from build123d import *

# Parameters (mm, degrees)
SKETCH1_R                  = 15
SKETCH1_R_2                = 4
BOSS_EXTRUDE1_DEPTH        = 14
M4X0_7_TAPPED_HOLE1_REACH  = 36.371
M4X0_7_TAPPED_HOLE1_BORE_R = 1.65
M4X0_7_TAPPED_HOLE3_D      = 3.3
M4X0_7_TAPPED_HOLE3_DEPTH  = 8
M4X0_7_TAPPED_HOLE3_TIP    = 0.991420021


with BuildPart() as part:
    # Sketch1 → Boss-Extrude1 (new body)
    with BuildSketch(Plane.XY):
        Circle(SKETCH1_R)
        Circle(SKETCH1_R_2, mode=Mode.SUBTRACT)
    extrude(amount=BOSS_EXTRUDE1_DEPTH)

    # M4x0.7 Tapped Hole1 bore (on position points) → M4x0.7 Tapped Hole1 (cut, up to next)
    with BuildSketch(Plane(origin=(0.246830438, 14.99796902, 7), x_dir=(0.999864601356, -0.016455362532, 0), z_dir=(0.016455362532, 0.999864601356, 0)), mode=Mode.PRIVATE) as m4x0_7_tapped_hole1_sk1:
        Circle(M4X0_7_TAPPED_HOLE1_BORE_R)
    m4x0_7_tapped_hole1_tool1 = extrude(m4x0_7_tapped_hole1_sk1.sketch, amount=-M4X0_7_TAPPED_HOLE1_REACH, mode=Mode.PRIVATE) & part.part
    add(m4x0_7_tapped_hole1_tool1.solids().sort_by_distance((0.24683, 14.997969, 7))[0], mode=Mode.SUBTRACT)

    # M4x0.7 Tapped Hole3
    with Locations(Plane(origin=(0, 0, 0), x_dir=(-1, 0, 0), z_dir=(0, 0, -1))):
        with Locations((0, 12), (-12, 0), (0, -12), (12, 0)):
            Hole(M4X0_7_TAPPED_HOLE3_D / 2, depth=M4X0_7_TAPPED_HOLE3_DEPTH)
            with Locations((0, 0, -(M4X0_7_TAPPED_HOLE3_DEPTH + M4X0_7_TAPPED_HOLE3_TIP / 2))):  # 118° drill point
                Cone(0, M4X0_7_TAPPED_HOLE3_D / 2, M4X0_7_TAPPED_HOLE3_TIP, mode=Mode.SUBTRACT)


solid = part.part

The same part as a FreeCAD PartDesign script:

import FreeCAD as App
import Part
import Sketcher
from FreeCAD import Vector
Q = App.Units.Quantity

doc = App.newDocument("Part")
body = doc.addObject("PartDesign::Body", "Body")

sketch1 = body.newObject("Sketcher::SketchObject", "Sketch")
sketch1.AttachmentSupport = (doc.getObject("XY_Plane"), [""])
sketch1.MapMode = "FlatFace"
sketch1.addGeometry(Part.Circle(Vector(0, 0, 0), Vector(0, 0, 1), 15), False)
sketch1.addGeometry(Part.Circle(Vector(0, 0, 0), Vector(0, 0, 1), 4), False)
sketch1.addConstraint(Sketcher.Constraint("Coincident", 0, 3, -1, 1))
sketch1.addConstraint(Sketcher.Constraint("Coincident", 1, 3, -1, 1))
sketch1.addConstraint(Sketcher.Constraint("Diameter", 0, Q("30 mm")))
sketch1.addConstraint(Sketcher.Constraint("Diameter", 1, Q("8 mm")))
pad1 = body.newObject("PartDesign::Pad", "Pad")
pad1.Profile = sketch1
pad1.Length = 14

sketch2 = body.newObject("Sketcher::SketchObject", "Sketch001")
sketch2.Placement = App.Placement(Vector(0.24683, 14.997969, 7), App.Rotation(Vector(0.999864601, -0.016455363, 0), Vector(0, 0, -0.999999999), Vector(0.016455363, 0.999864601, 0), "ZXY"))
sketch2.addGeometry(Part.Circle(Vector(0, 0, 0), Vector(0, 0, 1), 1.65), False)
sketch2.addConstraint(Sketcher.Constraint("Coincident", 0, 3, -1, 1))
sketch2.addConstraint(Sketcher.Constraint("Diameter", 0, Q("3.3 mm")))
pocket1 = body.newObject("PartDesign::Pocket", "Pocket")
pocket1.Profile = sketch2
pocket1.Type = "UpToFirst"

sketch3 = body.newObject("Sketcher::SketchObject", "Sketch002")
sketch3.AttachmentSupport = (doc.getObject("XY_Plane"), [""])
sketch3.MapMode = "FlatFace"
sketch3.addGeometry(Part.Circle(Vector(0, 12, 0), Vector(0, 0, 1), 1.65), False)
sketch3.addGeometry(Part.Circle(Vector(12, 0, 0), Vector(0, 0, 1), 1.65), False)
sketch3.addGeometry(Part.Circle(Vector(0, -12, 0), Vector(0, 0, 1), 1.65), False)
sketch3.addGeometry(Part.Circle(Vector(-12, 0, 0), Vector(0, 0, 1), 1.65), False)
sketch3.addConstraint(Sketcher.Constraint("Equal", 0, 1))
sketch3.addConstraint(Sketcher.Constraint("Equal", 1, 2))
sketch3.addConstraint(Sketcher.Constraint("Equal", 2, 3))
sketch3.addConstraint(Sketcher.Constraint("Symmetric", 0, 3, 2, 3, -1, 1))
sketch3.addConstraint(Sketcher.Constraint("Symmetric", 1, 3, 3, 3, -1, 1))
sketch3.addConstraint(Sketcher.Constraint("PointOnObject", 0, 3, -2))
sketch3.addConstraint(Sketcher.Constraint("PointOnObject", 1, 3, -1))
sketch3.addConstraint(Sketcher.Constraint("Diameter", 0, Q("3.3 mm")))
sketch3.addConstraint(Sketcher.Constraint("DistanceY", -1, 1, 0, 3, Q("12 mm")))
sketch3.addConstraint(Sketcher.Constraint("DistanceX", -1, 1, 1, 3, Q("12 mm")))
doc.recompute()
hole = body.newObject("PartDesign::Hole", "Hole")
hole.Profile = sketch3
hole.ThreadType = "None"
hole.Diameter = 3.3
hole.DepthType = "Dimension"
hole.Depth = 8
hole.DrillPoint = "Angled"
hole.DrillPointAngle = 118
hole.Reversed = True

doc.recompute()
